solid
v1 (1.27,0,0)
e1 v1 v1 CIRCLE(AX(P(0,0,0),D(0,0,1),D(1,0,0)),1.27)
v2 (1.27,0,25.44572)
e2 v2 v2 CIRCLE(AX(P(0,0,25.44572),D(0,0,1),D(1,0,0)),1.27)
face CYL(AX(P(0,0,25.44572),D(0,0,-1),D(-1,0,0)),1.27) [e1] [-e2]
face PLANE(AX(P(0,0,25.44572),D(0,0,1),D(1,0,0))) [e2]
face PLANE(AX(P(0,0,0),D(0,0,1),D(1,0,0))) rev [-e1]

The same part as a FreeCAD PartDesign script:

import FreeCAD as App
import Part
import Sketcher
from FreeCAD import Vector
Q = App.Units.Quantity

doc = App.newDocument("Part")
body = doc.addObject("PartDesign::Body", "Body")

# Sketch on XY plane
sketch1 = body.newObject("Sketcher::SketchObject", "Sketch")
sketch1.AttachmentSupport = (doc.getObject("XY_Plane"), [""])
sketch1.MapMode = "FlatFace"
sketch1.addGeometry(Part.Circle(Vector(0, 0, 0), Vector(0, 0, 1), 1.27), False)
sketch1.addConstraint([
    Sketcher.Constraint("Coincident", 0, 3, -1, 1),
    Sketcher.Constraint("Diameter", 0, Q("0.1 in")),
])
pad1 = body.newObject("PartDesign::Pad", "Pad")
pad1.Profile = sketch1
pad1.Length = Q("1.0018 in")

doc.recompute()
